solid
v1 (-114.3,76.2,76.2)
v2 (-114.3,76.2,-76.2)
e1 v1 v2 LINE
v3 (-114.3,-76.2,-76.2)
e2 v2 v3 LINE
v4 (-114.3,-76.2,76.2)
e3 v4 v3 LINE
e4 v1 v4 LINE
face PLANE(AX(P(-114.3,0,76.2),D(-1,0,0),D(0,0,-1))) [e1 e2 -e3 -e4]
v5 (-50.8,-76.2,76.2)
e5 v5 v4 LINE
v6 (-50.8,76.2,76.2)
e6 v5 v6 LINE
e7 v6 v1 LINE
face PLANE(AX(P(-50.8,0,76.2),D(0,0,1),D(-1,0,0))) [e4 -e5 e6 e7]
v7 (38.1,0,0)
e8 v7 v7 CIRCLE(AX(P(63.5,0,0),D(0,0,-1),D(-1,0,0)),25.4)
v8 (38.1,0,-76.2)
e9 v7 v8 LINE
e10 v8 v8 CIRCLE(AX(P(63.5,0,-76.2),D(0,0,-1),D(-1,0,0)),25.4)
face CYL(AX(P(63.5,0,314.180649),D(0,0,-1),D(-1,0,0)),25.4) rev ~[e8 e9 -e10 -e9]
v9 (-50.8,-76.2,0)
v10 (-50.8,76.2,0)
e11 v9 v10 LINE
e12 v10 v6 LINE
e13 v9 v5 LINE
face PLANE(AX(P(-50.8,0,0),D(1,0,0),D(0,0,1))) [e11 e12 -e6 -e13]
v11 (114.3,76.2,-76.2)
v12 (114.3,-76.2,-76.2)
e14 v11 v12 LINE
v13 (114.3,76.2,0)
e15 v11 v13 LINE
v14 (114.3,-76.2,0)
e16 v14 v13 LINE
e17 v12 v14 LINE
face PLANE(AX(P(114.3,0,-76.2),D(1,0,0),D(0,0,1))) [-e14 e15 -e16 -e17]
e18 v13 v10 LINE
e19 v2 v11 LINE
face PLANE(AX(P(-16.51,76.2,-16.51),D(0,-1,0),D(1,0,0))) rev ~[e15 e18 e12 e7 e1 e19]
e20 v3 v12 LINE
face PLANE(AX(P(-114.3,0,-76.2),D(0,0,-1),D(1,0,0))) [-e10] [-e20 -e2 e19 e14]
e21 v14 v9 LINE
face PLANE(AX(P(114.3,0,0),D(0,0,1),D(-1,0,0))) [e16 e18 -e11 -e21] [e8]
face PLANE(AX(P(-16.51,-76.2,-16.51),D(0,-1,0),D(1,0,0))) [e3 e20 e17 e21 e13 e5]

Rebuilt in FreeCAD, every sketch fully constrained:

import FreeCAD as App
import Part
import Sketcher
from FreeCAD import Vector
Q = App.Units.Quantity


def add_polygon(sketch, points):
    """Adds a closed chain of lines whose ends are joined by coincident constraints."""
    first, n = sketch.GeometryCount, len(points)
    for a, b in zip(points, points[1:] + points[:1]):
        sketch.addGeometry(Part.LineSegment(App.Vector(*a, 0), App.Vector(*b, 0)), False)
    for i in range(n):
        sketch.addConstraint(Sketcher.Constraint("Coincident", first + i, 2, first + (i + 1) % n, 1))

doc = App.newDocument("Part")
params = doc.addObject("Spreadsheet::Sheet", "Params")
for row, (alias, value) in enumerate([
    ("sketch1_width", "9 in"),
    ("sketch1_height", "6 in"),
    ("sketch1_width2", "2.5 in"),
    ("pad1_length", "6 in"),
    ("sketch2_diameter", "2 in"),
    ("hole_diameter", "2 in"),
], start=1):
    params.set(f"A{row}", alias)
    params.set(f"B{row}", "=" + value)
    params.setAlias(f"B{row}", alias)

body = doc.addObject("PartDesign::Body", "Body")

# Sketch on XZ plane
sketch1 = body.newObject("Sketcher::SketchObject", "Sketch")
sketch1.AttachmentSupport = (doc.getObject("XZ_Plane"), [""])
sketch1.MapMode = "FlatFace"
add_polygon(sketch1, [(-51, 76), (-114, 76), (-114, -76), (114, -76), (114, 0), (-51, 0)])  # lines 0-5
sketch1.addConstraint([
    Sketcher.Constraint("Horizontal", 0),
    Sketcher.Constraint("Vertical", 1),
    Sketcher.Constraint("Horizontal", 2),
    Sketcher.Constraint("Vertical", 3),
    Sketcher.Constraint("Horizontal", 4),
    Sketcher.Constraint("Vertical", 5),
    Sketcher.Constraint("Symmetric", 0, 2, 2, 2, -1, 1),
    Sketcher.Constraint("PointOnObject", 3, 2, -1),
    Sketcher.Constraint("DistanceX", 2, 1, 2, 2, Q("9 in")),
    Sketcher.Constraint("DistanceY", 1, 2, 1, 1, Q("6 in")),
    Sketcher.Constraint("DistanceX", 0, 2, 0, 1, Q("2.5 in")),
])
sketch1.setExpression("Constraints[14]", "Params.sketch1_width")
sketch1.setExpression("Constraints[15]", "Params.sketch1_height")
sketch1.setExpression("Constraints[16]", "Params.sketch1_width2")
pad1 = body.newObject("PartDesign::Pad", "Pad")
pad1.Profile = sketch1
pad1.setExpression("Length", "Params.pad1_length")
pad1.Midplane = True

# Sketch on XY plane
sketch2 = body.newObject("Sketcher::SketchObject", "Sketch001")
sketch2.AttachmentSupport = (doc.getObject("XY_Plane"), [""])
sketch2.MapMode = "FlatFace"
sketch2.addGeometry(Part.Circle(Vector(64, 0, 0), Vector(0, 0, 1), 25), False)
sketch2.addConstraint([
    Sketcher.Constraint("PointOnObject", 0, 3, -1),
    Sketcher.Constraint("Diameter", 0, Q("2 in")),
    Sketcher.Constraint("DistanceX", -1, 1, 0, 3, Q("2.5 in")),
])
sketch2.setExpression("Constraints[1]", "Params.sketch2_diameter")
doc.recompute()
hole = body.newObject("PartDesign::Hole", "Hole")
hole.Profile = sketch2
hole.ThreadType = "None"
hole.setExpression("Diameter", "Params.hole_diameter")
hole.DepthType = "ThroughAll"

doc.recompute()
